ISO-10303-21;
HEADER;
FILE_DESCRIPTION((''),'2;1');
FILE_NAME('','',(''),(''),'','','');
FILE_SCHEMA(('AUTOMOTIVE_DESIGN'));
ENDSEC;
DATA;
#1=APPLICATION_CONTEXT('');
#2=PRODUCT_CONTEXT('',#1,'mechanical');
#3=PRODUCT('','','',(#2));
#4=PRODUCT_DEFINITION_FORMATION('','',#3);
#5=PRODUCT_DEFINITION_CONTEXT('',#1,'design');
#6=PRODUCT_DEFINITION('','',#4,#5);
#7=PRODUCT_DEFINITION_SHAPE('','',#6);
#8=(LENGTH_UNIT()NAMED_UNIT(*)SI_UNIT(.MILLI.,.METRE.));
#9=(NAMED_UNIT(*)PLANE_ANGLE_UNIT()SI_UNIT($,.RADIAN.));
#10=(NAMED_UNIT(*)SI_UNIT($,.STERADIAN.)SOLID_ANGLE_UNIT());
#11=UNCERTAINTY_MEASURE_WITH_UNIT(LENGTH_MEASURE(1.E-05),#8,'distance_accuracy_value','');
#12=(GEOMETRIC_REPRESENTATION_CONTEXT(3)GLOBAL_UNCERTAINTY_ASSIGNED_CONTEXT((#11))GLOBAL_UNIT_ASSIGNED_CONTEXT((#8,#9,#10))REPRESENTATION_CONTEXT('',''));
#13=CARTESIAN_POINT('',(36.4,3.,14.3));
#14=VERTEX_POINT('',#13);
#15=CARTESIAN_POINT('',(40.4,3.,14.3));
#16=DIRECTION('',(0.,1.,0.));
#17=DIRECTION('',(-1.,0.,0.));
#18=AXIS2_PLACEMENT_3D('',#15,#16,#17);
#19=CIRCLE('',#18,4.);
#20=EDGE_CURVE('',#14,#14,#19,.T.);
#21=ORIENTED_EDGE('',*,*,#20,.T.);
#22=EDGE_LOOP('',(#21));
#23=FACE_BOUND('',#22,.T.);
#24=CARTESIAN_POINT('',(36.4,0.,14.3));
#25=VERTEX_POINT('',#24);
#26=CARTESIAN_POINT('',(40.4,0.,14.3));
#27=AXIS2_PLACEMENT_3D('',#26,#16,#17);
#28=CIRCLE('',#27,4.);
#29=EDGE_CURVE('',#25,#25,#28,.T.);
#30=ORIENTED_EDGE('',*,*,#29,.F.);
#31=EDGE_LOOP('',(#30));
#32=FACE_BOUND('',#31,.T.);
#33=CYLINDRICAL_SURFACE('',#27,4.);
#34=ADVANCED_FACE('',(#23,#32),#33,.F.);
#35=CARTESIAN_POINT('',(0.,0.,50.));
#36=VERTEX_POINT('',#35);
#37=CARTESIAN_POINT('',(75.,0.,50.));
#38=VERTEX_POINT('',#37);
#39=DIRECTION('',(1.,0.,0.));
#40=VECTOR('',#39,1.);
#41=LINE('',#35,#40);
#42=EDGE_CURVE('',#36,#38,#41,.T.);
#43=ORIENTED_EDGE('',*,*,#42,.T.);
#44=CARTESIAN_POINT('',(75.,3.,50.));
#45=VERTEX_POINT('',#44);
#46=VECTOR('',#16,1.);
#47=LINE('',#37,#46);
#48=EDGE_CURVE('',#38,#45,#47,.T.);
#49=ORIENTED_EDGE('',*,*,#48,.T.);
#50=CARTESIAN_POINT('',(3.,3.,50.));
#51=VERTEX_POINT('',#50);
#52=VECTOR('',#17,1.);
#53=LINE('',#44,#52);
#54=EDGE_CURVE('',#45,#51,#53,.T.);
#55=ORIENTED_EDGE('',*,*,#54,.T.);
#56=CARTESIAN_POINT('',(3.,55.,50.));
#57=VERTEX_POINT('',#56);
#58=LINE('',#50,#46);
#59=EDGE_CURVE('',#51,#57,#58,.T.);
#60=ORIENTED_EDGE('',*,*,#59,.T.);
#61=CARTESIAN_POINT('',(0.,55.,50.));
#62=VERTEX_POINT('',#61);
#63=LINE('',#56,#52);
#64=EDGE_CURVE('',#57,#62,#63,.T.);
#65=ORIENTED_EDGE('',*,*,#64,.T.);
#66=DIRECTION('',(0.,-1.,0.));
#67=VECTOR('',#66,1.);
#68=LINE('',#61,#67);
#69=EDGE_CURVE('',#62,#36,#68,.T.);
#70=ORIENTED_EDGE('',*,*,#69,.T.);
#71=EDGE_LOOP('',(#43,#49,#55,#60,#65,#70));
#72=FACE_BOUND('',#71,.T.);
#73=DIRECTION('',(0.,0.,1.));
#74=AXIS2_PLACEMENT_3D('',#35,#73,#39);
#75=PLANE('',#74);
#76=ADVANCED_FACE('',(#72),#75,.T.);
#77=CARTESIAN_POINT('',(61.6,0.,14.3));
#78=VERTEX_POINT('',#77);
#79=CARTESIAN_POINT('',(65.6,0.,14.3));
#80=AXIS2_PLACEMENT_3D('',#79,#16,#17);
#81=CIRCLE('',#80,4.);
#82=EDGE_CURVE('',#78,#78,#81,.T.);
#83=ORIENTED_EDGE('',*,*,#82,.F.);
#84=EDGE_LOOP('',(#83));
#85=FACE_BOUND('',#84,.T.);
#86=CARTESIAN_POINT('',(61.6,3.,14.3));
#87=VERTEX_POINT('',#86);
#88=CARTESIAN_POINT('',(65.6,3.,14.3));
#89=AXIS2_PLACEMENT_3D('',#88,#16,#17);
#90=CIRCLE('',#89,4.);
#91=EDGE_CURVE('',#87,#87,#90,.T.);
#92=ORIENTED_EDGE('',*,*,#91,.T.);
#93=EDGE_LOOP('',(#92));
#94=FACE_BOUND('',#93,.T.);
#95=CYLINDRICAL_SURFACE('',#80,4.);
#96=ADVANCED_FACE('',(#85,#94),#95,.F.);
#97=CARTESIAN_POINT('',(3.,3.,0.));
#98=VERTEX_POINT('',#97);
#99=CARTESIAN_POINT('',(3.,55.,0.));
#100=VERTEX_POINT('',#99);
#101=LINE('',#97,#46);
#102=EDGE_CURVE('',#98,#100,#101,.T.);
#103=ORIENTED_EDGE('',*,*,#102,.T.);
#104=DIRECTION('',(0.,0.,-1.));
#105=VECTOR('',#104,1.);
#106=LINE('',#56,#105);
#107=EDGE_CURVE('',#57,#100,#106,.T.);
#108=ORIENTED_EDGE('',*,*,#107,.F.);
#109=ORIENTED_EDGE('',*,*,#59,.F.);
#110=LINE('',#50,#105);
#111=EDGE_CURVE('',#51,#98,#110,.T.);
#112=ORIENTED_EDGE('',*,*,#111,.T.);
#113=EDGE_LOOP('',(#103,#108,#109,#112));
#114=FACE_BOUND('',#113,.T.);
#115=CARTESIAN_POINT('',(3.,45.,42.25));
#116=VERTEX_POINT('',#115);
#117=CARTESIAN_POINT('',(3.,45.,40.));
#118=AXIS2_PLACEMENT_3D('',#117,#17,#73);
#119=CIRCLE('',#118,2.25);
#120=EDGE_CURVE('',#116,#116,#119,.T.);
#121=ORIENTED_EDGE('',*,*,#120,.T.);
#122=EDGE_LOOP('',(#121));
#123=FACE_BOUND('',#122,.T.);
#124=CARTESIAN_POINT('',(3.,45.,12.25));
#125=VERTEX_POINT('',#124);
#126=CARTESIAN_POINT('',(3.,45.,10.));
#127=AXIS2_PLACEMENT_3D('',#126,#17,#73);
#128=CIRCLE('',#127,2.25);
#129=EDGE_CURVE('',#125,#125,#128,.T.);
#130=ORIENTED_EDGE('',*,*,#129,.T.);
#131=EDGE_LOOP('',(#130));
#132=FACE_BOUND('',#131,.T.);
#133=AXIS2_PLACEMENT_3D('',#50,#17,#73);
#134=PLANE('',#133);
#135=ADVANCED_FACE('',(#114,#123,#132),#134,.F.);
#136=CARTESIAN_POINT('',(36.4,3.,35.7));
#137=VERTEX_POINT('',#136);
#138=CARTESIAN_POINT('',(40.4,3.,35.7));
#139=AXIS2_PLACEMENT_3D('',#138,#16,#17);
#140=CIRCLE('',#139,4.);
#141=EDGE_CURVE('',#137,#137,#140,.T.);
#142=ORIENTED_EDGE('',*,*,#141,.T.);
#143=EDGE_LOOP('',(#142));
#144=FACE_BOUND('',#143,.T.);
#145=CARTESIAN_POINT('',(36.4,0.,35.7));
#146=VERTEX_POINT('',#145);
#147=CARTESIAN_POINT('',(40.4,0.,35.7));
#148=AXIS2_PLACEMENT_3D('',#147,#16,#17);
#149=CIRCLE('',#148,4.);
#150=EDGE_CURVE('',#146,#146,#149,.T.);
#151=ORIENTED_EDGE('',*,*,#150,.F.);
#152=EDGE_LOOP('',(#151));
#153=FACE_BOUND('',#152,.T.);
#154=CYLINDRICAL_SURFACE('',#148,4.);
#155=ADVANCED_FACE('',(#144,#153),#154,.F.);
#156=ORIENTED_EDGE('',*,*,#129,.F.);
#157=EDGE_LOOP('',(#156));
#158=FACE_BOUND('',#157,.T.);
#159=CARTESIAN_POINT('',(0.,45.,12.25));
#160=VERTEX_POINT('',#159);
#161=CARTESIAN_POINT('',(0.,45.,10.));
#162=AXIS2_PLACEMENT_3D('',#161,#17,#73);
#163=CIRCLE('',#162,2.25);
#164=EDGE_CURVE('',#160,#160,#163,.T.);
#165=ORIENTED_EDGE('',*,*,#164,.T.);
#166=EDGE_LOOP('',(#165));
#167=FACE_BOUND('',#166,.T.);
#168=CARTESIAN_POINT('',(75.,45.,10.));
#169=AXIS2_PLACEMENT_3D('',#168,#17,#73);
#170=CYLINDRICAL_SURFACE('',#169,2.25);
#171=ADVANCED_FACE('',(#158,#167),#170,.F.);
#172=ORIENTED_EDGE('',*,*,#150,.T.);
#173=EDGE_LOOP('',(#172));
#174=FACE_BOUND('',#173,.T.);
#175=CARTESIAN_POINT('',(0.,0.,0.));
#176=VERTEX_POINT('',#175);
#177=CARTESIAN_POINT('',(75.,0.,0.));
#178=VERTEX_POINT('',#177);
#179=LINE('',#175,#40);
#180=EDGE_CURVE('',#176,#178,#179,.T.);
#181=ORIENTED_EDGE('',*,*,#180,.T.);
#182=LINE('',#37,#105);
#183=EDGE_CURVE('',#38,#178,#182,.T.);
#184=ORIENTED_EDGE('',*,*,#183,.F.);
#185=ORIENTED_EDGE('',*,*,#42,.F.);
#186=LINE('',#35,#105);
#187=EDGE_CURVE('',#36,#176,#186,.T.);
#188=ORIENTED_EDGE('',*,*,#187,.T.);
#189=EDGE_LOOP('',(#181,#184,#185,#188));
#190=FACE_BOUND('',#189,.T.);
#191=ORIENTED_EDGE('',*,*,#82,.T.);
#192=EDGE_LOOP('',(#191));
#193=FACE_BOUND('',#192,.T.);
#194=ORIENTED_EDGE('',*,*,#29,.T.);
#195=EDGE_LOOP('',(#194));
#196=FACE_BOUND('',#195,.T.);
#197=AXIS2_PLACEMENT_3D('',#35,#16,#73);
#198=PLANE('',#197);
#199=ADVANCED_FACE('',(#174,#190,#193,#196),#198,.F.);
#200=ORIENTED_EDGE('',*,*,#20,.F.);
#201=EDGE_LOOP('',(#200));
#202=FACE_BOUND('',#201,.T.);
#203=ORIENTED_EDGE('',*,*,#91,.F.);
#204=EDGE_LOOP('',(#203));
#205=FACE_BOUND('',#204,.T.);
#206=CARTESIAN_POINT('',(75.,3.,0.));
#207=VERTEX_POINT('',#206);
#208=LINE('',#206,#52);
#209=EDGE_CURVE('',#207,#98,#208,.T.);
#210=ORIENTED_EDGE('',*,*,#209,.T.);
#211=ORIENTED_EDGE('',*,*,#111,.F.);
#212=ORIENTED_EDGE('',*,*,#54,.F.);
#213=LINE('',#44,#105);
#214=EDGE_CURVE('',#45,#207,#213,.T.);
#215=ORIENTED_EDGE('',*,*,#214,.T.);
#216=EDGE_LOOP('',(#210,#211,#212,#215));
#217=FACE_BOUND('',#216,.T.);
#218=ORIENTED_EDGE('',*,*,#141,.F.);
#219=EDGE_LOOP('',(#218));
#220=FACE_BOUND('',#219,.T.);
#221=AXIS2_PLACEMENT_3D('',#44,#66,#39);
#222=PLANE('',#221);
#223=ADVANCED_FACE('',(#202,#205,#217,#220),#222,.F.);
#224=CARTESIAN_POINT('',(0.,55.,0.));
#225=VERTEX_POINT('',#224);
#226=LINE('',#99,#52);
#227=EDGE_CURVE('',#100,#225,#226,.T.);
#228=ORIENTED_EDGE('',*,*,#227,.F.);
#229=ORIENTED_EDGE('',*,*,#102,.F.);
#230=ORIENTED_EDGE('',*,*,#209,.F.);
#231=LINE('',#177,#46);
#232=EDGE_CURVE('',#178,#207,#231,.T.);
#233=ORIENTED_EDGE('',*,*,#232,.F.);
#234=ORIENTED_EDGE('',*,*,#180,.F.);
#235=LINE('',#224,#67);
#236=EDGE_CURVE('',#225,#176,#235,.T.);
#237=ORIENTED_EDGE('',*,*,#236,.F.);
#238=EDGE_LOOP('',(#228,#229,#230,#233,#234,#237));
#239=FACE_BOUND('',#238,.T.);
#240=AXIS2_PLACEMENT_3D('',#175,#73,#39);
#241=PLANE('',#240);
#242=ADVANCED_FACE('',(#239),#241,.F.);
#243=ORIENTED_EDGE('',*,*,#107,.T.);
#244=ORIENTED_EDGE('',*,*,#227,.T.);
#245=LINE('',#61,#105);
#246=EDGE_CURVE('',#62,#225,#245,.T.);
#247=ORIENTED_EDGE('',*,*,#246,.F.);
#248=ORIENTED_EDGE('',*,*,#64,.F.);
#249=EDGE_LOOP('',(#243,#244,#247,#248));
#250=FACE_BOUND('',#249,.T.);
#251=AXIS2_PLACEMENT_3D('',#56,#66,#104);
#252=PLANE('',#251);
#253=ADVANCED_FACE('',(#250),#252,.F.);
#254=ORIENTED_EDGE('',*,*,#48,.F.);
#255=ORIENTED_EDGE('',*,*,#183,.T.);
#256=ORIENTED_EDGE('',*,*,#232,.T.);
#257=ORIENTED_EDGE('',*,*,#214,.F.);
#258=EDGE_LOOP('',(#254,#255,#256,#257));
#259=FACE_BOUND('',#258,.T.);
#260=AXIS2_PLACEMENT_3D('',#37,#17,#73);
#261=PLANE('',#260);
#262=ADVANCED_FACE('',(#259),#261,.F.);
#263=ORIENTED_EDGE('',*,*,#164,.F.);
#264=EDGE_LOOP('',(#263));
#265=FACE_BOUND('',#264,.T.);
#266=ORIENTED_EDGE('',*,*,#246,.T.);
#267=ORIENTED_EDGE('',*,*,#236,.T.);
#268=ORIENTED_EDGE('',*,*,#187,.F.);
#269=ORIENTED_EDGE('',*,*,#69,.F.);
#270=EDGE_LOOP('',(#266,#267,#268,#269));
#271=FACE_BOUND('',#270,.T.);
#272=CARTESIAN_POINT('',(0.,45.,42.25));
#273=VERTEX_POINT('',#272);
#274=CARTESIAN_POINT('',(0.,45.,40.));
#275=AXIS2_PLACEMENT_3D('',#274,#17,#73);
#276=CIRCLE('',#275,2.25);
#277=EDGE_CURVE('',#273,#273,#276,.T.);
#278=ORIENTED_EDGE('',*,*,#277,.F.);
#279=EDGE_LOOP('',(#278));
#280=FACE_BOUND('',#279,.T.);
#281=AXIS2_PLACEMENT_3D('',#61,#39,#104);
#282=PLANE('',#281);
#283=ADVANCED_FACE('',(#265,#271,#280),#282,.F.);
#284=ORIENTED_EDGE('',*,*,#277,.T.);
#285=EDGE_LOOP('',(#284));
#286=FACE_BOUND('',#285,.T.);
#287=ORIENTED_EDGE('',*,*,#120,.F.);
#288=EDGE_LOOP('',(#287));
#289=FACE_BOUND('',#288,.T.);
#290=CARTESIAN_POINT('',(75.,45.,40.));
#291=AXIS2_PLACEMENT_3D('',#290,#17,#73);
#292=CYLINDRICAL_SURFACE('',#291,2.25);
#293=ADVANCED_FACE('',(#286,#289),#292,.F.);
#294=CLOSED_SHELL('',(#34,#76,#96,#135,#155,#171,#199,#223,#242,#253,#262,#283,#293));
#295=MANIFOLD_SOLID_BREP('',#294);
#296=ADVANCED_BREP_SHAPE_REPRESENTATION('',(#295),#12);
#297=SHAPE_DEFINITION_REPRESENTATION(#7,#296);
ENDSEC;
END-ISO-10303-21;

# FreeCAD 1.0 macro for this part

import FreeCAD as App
import Part
import Sketcher
Q = App.Units.Quantity

doc = App.newDocument("Part")
body = doc.addObject("PartDesign::Body", "Body")

sketch1 = doc.addObject("Sketcher::SketchObject", "Sketch")
body.addObject(sketch1)
sketch1.AttachmentSupport = (doc.XY_Plane, [""])
sketch1.MapMode = "FlatFace"
sketch1.addGeometry([
    Part.LineSegment(App.Vector(0, 0, 0), App.Vector(75, 0, 0)),
    Part.LineSegment(App.Vector(75, 0, 0), App.Vector(75, 3, 0)),
    Part.LineSegment(App.Vector(75, 3, 0), App.Vector(3, 3, 0)),
    Part.LineSegment(App.Vector(3, 3, 0), App.Vector(3, 55, 0)),
    Part.LineSegment(App.Vector(3, 55, 0), App.Vector(0, 55, 0)),
    Part.LineSegment(App.Vector(0, 55, 0), App.Vector(0, 0, 0)),
], False)
sketch1.addConstraint([
    Sketcher.Constraint("Coincident", 0, 2, 1, 1),
    Sketcher.Constraint("Coincident", 1, 2, 2, 1),
    Sketcher.Constraint("Coincident", 2, 2, 3, 1),
    Sketcher.Constraint("Coincident", 3, 2, 4, 1),
    Sketcher.Constraint("Coincident", 4, 2, 5, 1),
    Sketcher.Constraint("Coincident", 5, 2, 0, 1),
    Sketcher.Constraint("Horizontal", 0),
    Sketcher.Constraint("Vertical", 1),
    Sketcher.Constraint("Horizontal", 2),
    Sketcher.Constraint("Vertical", 3),
    Sketcher.Constraint("Horizontal", 4),
    Sketcher.Constraint("Vertical", 5),
    Sketcher.Constraint("Coincident", 5, 2, -1, 1),
    Sketcher.Constraint("Equal", 4, 1),
    Sketcher.Constraint("DistanceX", 0, 1, 0, 2, Q("75 mm")),
    Sketcher.Constraint("DistanceX", 2, 2, 2, 1, Q("72 mm")),
    Sketcher.Constraint("DistanceY", 3, 1, 3, 2, Q("52 mm")),
])
pad1 = doc.addObject("PartDesign::Pad", "Pad")
body.addObject(pad1)
pad1.Profile = sketch1
pad1.Length = 50

sketch2 = doc.addObject("Sketcher::SketchObject", "Sketch001")
body.addObject(sketch2)
sketch2.AttachmentSupport = (doc.XZ_Plane, [""])
sketch2.MapMode = "FlatFace"
sketch2.AttachmentOffset = App.Placement(App.Vector(0, 0, -3), App.Rotation())
sketch2.addGeometry([
    Part.Circle(App.Vector(40.4, 14.3, 0), App.Vector(0, 0, 1), 2),
    Part.Circle(App.Vector(40.4, 35.7, 0), App.Vector(0, 0, 1), 2),
], False)
sketch2.addConstraint([
    Sketcher.Constraint("Equal", 0, 1),
    Sketcher.Constraint("Vertical", 0, 3, 1, 3),
    Sketcher.Constraint("Diameter", 0, Q("4 mm")),
    Sketcher.Constraint("DistanceX", -1, 1, 0, 3, Q("40.4 mm")),
    Sketcher.Constraint("DistanceY", -1, 1, 0, 3, Q("14.3 mm")),
    Sketcher.Constraint("DistanceY", -1, 1, 1, 3, Q("35.7 mm")),
])
pocket1 = doc.addObject("PartDesign::Pocket", "Pocket")
body.addObject(pocket1)
pocket1.Profile = sketch2
pocket1.Type = "ThroughAll"
pocket1.Reversed = True

sketch3 = doc.addObject("Sketcher::SketchObject", "Sketch002")
body.addObject(sketch3)
sketch3.AttachmentSupport = (doc.XZ_Plane, [""])
sketch3.MapMode = "FlatFace"
sketch3.AttachmentOffset = App.Placement(App.Vector(0, 0, -3), App.Rotation())
sketch3.addGeometry(Part.Circle(App.Vector(65.6, 14.3, 0), App.Vector(0, 0, 1), 2), False)
sketch3.addConstraint([
    Sketcher.Constraint("Diameter", 0, Q("4 mm")),
    Sketcher.Constraint("DistanceX", -1, 1, 0, 3, Q("65.6 mm")),
    Sketcher.Constraint("DistanceY", -1, 1, 0, 3, Q("14.3 mm")),
])
pocket2 = doc.addObject("PartDesign::Pocket", "Pocket001")
body.addObject(pocket2)
pocket2.Profile = sketch3
pocket2.Type = "ThroughAll"
pocket2.Reversed = True

sketch4 = doc.addObject("Sketcher::SketchObject", "Sketch003")
body.addObject(sketch4)
sketch4.AttachmentSupport = (doc.XZ_Plane, [""])
sketch4.MapMode = "FlatFace"
sketch4.AttachmentOffset = App.Placement(App.Vector(0, 0, -3), App.Rotation())
sketch4.addGeometry([
    Part.Circle(App.Vector(40.4, 14.3, 0), App.Vector(0, 0, 1), 4),
    Part.Circle(App.Vector(65.6, 14.3, 0), App.Vector(0, 0, 1), 4),
    Part.Circle(App.Vector(40.4, 35.7, 0), App.Vector(0, 0, 1), 4),
], False)
sketch4.addConstraint([
    Sketcher.Constraint("Equal", 0, 1),
    Sketcher.Constraint("Equal", 1, 2),
    Sketcher.Constraint("Horizontal", 0, 3, 1, 3),
    Sketcher.Constraint("Vertical", 0, 3, 2, 3),
    Sketcher.Constraint("Diameter", 0, Q("8 mm")),
    Sketcher.Constraint("DistanceX", -1, 1, 0, 3, Q("40.4 mm")),
    Sketcher.Constraint("DistanceY", -1, 1, 0, 3, Q("14.3 mm")),
    Sketcher.Constraint("DistanceX", -1, 1, 1, 3, Q("65.6 mm")),
    Sketcher.Constraint("DistanceY", -1, 1, 2, 3, Q("35.7 mm")),
])
pocket3 = doc.addObject("PartDesign::Pocket", "Pocket002")
body.addObject(pocket3)
pocket3.Profile = sketch4
pocket3.Type = "ThroughAll"
pocket3.Reversed = True

sketch5 = doc.addObject("Sketcher::SketchObject", "Sketch004")
body.addObject(sketch5)
sketch5.AttachmentSupport = (doc.YZ_Plane, [""])
sketch5.MapMode = "FlatFace"
sketch5.addGeometry([
    Part.Circle(App.Vector(45, 10, 0), App.Vector(0, 0, 1), 2.2),
    Part.Circle(App.Vector(45, 40, 0), App.Vector(0, 0, 1), 2.2),
], False)
sketch5.addConstraint([
    Sketcher.Constraint("Equal", 0, 1),
    Sketcher.Constraint("Vertical", 0, 3, 1, 3),
    Sketcher.Constraint("Diameter", 0, Q("4.5 mm")),
    Sketcher.Constraint("DistanceX", -1, 1, 0, 3, Q("45 mm")),
    Sketcher.Constraint("DistanceY", -1, 1, 0, 3, Q("10 mm")),
    Sketcher.Constraint("DistanceY", -1, 1, 1, 3, Q("40 mm")),
])
pocket4 = doc.addObject("PartDesign::Pocket", "Pocket003")
body.addObject(pocket4)
pocket4.Profile = sketch5
pocket4.Type = "ThroughAll"
pocket4.Reversed = True

doc.recompute()
